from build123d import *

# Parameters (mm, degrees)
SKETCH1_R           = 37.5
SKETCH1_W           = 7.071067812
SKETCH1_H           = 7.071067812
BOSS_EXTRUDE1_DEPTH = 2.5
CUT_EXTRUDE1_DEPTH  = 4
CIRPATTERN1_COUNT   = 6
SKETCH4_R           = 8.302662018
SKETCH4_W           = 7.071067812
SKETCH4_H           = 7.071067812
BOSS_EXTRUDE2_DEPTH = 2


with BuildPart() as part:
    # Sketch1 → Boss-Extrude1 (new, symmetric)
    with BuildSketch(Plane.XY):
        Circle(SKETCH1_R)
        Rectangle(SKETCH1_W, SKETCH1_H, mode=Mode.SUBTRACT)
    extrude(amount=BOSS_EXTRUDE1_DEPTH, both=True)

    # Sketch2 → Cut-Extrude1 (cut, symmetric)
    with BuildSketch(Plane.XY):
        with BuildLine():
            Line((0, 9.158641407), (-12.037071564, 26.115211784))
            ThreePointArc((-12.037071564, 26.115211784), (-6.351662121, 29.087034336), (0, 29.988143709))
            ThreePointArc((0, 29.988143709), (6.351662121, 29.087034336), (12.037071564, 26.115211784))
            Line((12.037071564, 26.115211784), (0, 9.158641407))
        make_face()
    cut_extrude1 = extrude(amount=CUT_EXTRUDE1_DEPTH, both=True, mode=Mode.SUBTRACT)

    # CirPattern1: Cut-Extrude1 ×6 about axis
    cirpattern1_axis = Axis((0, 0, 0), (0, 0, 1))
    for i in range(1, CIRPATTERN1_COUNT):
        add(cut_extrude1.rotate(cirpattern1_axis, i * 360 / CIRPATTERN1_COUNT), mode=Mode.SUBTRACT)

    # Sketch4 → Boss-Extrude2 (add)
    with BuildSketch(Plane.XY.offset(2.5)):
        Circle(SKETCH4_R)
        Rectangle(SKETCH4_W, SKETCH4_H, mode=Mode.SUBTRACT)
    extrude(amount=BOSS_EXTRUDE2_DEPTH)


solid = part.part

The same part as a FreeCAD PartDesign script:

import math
import FreeCAD as App
import Part
import Sketcher
from FreeCAD import Vector

doc = App.newDocument("Part")
body = doc.addObject("PartDesign::Body", "Body")

sketch1 = body.newObject("Sketcher::SketchObject", "Sketch")
sketch1.AttachmentSupport = (doc.getObject("XY_Plane"), [""])
sketch1.MapMode = "FlatFace"
sketch1.addGeometry([
    Part.Circle(Vector(0, 0, 0), Vector(0, 0, 1), 37.5),
    Part.LineSegment(Vector(3.535534, -3.535534, 0), Vector(-3.535534, -3.535534, 0)),
    Part.LineSegment(Vector(-3.535534, -3.535534, 0), Vector(-3.535534, 3.535534, 0)),
    Part.LineSegment(Vector(-3.535534, 3.535534, 0), Vector(3.535534, 3.535534, 0)),
    Part.LineSegment(Vector(3.535534, 3.535534, 0), Vector(3.535534, -3.535534, 0)),
], False)
sketch1.addConstraint([
    Sketcher.Constraint("Coincident", 1, 2, 2, 1),
    Sketcher.Constraint("Coincident", 2, 2, 3, 1),
    Sketcher.Constraint("Coincident", 3, 2, 4, 1),
    Sketcher.Constraint("Coincident", 4, 2, 1, 1),
    Sketcher.Constraint("Horizontal", 1),
    Sketcher.Constraint("Vertical", 2),
    Sketcher.Constraint("Horizontal", 3),
    Sketcher.Constraint("Vertical", 4),
    Sketcher.Constraint("Coincident", 0, 3, -1, 1),
    Sketcher.Constraint("Symmetric", 1, 2, 3, 2, -1, 1),
    Sketcher.Constraint("Equal", 3, 2),
    Sketcher.Constraint("Diameter", 0, 75.0),
    Sketcher.Constraint("DistanceX", 1, 2, 1, 1, 7.071068),
])
pad1 = body.newObject("PartDesign::Pad", "Pad")
pad1.Profile = sketch1
pad1.Length = 5
pad1.Midplane = True

sketch2 = body.newObject("Sketcher::SketchObject", "Sketch001")
sketch2.AttachmentSupport = (doc.getObject("XY_Plane"), [""])
sketch2.MapMode = "FlatFace"
sketch2.addGeometry([
    Part.LineSegment(Vector(-12.037072, 26.115212, 0), Vector(0, 9.158641, 0)),
    Part.LineSegment(Vector(0, 9.158641, 0), Vector(12.037072, 26.115212, 0)),
    Part.ArcOfCircle(Part.Circle(Vector(0.556753, 11.076459, 0), Vector(0, 0, 1), 18.919878), math.radians(52.642525), math.radians(91.68628)),
    Part.ArcOfCircle(Part.Circle(Vector(-0.556753, 11.076459, 0), Vector(0, 0, 1), 18.919878), math.radians(88.31372), math.radians(127.357475)),
], False)
sketch2.addConstraint([
    Sketcher.Constraint("Coincident", 0, 2, 1, 1),
    Sketcher.Constraint("Coincident", 1, 2, 2, 1),
    Sketcher.Constraint("Coincident", 2, 2, 3, 1),
    Sketcher.Constraint("Coincident", 3, 2, 0, 1),
    Sketcher.Constraint("Equal", 2, 3),
    Sketcher.Constraint("Symmetric", 2, 3, 3, 3, -2),
    Sketcher.Constraint("PointOnObject", 0, 2, -2),
    Sketcher.Constraint("Horizontal", 1, 2, 3, 2),
    Sketcher.Constraint("Radius", 2, 18.919878),
    Sketcher.Constraint("DistanceY", -1, 1, 2, 3, 11.076459),
    Sketcher.Constraint("DistanceY", -1, 1, 0, 2, 9.158641),
    Sketcher.Constraint("DistanceX", -1, 1, 1, 2, 12.037072),
    Sketcher.Constraint("DistanceY", -1, 1, 1, 2, 26.115212),
])
pocket1 = body.newObject("PartDesign::Pocket", "Pocket")
pocket1.Profile = sketch2
pocket1.Length = 8
pocket1.Midplane = True
doc.recompute()

polarpattern = body.newObject("PartDesign::PolarPattern", "PolarPattern")
polarpattern.Originals = [pocket1]
polarpattern.Axis = (doc.getObject("Z_Axis"), [""])
polarpattern.Angle = 360
polarpattern.Occurrences = 6
body.Tip = polarpattern

sketch3 = body.newObject("Sketcher::SketchObject", "Sketch002")
sketch3.AttachmentSupport = (doc.getObject("XY_Plane"), [""])
sketch3.MapMode = "FlatFace"
sketch3.AttachmentOffset = App.Placement(Vector(0, 0, 2.5), App.Rotation())
sketch3.addGeometry([
    Part.Circle(Vector(0, 0, 0), Vector(0, 0, 1), 8.302662),
    Part.LineSegment(Vector(3.535534, -3.535534, 0), Vector(-3.535534, -3.535534, 0)),
    Part.LineSegment(Vector(-3.535534, -3.535534, 0), Vector(-3.535534, 3.535534, 0)),
    Part.LineSegment(Vector(-3.535534, 3.535534, 0), Vector(3.535534, 3.535534, 0)),
    Part.LineSegment(Vector(3.535534, 3.535534, 0), Vector(3.535534, -3.535534, 0)),
], False)
sketch3.addConstraint([
    Sketcher.Constraint("Coincident", 1, 2, 2, 1),
    Sketcher.Constraint("Coincident", 2, 2, 3, 1),
    Sketcher.Constraint("Coincident", 3, 2, 4, 1),
    Sketcher.Constraint("Coincident", 4, 2, 1, 1),
    Sketcher.Constraint("Horizontal", 1),
    Sketcher.Constraint("Vertical", 2),
    Sketcher.Constraint("Horizontal", 3),
    Sketcher.Constraint("Vertical", 4),
    Sketcher.Constraint("Coincident", 0, 3, -1, 1),
    Sketcher.Constraint("Symmetric", 1, 2, 3, 2, -1, 1),
    Sketcher.Constraint("Equal", 3, 2),
    Sketcher.Constraint("Diameter", 0, 16.605324),
    Sketcher.Constraint("DistanceX", 1, 2, 1, 1, 7.071068),
])
pad2 = body.newObject("PartDesign::Pad", "Pad001")
pad2.Profile = sketch3
pad2.Length = 2

doc.recompute()
